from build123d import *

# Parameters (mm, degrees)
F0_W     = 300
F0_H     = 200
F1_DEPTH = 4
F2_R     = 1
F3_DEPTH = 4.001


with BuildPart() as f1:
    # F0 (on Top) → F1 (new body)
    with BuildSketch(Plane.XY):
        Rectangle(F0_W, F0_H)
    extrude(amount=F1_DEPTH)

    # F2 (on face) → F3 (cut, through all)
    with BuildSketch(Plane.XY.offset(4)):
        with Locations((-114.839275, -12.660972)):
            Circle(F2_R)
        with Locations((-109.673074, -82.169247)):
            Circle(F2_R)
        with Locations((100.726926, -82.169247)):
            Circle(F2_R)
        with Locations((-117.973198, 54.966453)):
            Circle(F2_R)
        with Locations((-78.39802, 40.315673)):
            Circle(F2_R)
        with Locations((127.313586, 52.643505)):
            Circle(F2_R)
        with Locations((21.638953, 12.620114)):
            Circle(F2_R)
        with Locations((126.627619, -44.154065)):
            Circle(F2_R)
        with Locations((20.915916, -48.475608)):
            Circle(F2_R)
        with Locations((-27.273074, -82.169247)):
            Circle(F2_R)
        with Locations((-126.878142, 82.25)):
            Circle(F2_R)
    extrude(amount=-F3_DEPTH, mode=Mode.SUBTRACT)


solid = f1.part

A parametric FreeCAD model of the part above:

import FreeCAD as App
import Part
import Sketcher
from FreeCAD import Vector

doc = App.newDocument("Part")
params = doc.addObject("Spreadsheet::Sheet", "Params")
for row, (alias, value) in enumerate([
    ("sketch1_width", "300 mm"),
    ("sketch1_height", "200 mm"),
    ("pad1_length", "4 mm"),
    ("sketch2_diameter", "2 mm"),
], start=1):
    params.set(f"A{row}", alias)
    params.set(f"B{row}", "=" + value)
    params.setAlias(f"B{row}", alias)

body = doc.addObject("PartDesign::Body", "Body")

sketch1 = body.newObject("Sketcher::SketchObject", "Sketch")
sketch1.AttachmentSupport = (doc.getObject("XY_Plane"), [""])
sketch1.MapMode = "FlatFace"
sketch1.addGeometry([
    Part.LineSegment(Vector(-150, 100, 0), Vector(-150, -100, 0)),
    Part.LineSegment(Vector(-150, -100, 0), Vector(150, -100, 0)),
    Part.LineSegment(Vector(150, -100, 0), Vector(150, 100, 0)),
    Part.LineSegment(Vector(150, 100, 0), Vector(-150, 100, 0)),
], False)
sketch1.addConstraint([
    Sketcher.Constraint("Coincident", 0, 2, 1, 1),
    Sketcher.Constraint("Coincident", 1, 2, 2, 1),
    Sketcher.Constraint("Coincident", 2, 2, 3, 1),
    Sketcher.Constraint("Coincident", 3, 2, 0, 1),
    Sketcher.Constraint("Vertical", 0),
    Sketcher.Constraint("Horizontal", 1),
    Sketcher.Constraint("Vertical", 2),
    Sketcher.Constraint("Horizontal", 3),
    Sketcher.Constraint("Symmetric", 0, 2, 2, 2, -1, 1),
    Sketcher.Constraint("DistanceX", 1, 1, 1, 2, 300.0),
    Sketcher.Constraint("DistanceY", 0, 2, 0, 1, 200.0),
])
sketch1.setExpression("Constraints[9]", "Params.sketch1_width")
sketch1.setExpression("Constraints[10]", "Params.sketch1_height")
pad1 = body.newObject("PartDesign::Pad", "Pad")
pad1.Profile = sketch1
pad1.setExpression("Length", "Params.pad1_length")

sketch2 = body.newObject("Sketcher::SketchObject", "Sketch001")
sketch2.AttachmentSupport = (doc.getObject("XY_Plane"), [""])
sketch2.MapMode = "FlatFace"
sketch2.AttachmentOffset = App.Placement(Vector(0, 0, 4), App.Rotation())
sketch2.addGeometry([
    Part.Circle(Vector(-114.839275, -12.660972, 0), Vector(0, 0, 1), 1),
    Part.Circle(Vector(-109.673074, -82.169247, 0), Vector(0, 0, 1), 1),
    Part.Circle(Vector(100.726926, -82.169247, 0), Vector(0, 0, 1), 1),
    Part.Circle(Vector(-117.973198, 54.966453, 0), Vector(0, 0, 1), 1),
    Part.Circle(Vector(-78.39802, 40.315673, 0), Vector(0, 0, 1), 1),
    Part.Circle(Vector(127.313586, 52.643505, 0), Vector(0, 0, 1), 1),
    Part.Circle(Vector(21.638953, 12.620114, 0), Vector(0, 0, 1), 1),
    Part.Circle(Vector(126.627619, -44.154065, 0), Vector(0, 0, 1), 1),
    Part.Circle(Vector(20.915916, -48.475608, 0), Vector(0, 0, 1), 1),
    Part.Circle(Vector(-27.273074, -82.169247, 0), Vector(0, 0, 1), 1),
    Part.Circle(Vector(-126.878142, 82.25, 0), Vector(0, 0, 1), 1),
], False)
sketch2.addConstraint([
    Sketcher.Constraint("Equal", 0, 1),
    Sketcher.Constraint("Equal", 1, 2),
    Sketcher.Constraint("Equal", 2, 3),
    Sketcher.Constraint("Equal", 3, 4),
    Sketcher.Constraint("Equal", 4, 5),
    Sketcher.Constraint("Equal", 5, 6),
    Sketcher.Constraint("Equal", 6, 7),
    Sketcher.Constraint("Equal", 7, 8),
    Sketcher.Constraint("Equal", 8, 9),
    Sketcher.Constraint("Equal", 9, 10),
    Sketcher.Constraint("Horizontal", 1, 3, 2, 3),
    Sketcher.Constraint("Horizontal", 2, 3, 9, 3),
    Sketcher.Constraint("Diameter", 0, 2.0),
    Sketcher.Constraint("DistanceX", 9, 3, 2, 3, 128.0),
    Sketcher.Constraint("DistanceX", 1, 3, 2, 3, 210.4),
    Sketcher.Constraint("DistanceY", -1, 1, 10, 3, 82.25),
    Sketcher.Constraint("DistanceX", 0, 3, 1, 3, 5.166201),
    Sketcher.Constraint("DistanceY", 1, 3, 3, 3, 137.1357),
    Sketcher.Constraint("DistanceY", 0, 3, -1, 1, 12.660972),
    Sketcher.Constraint("DistanceX", 4, 3, -1, 1, 78.39802),
    Sketcher.Constraint("DistanceX", -1, 1, 7, 3, 126.627619),
    Sketcher.Constraint("DistanceX", 10, 3, -1, 1, 126.878142),
    Sketcher.Constraint("DistanceY", 4, 3, 3, 3, 14.65078),
    Sketcher.Constraint("DistanceX", 2, 3, 5, 3, 26.58666),
    Sketcher.Constraint("DistanceY", 2, 3, 5, 3, 134.812752),
    Sketcher.Constraint("DistanceY", 6, 3, 4, 3, 27.695559),
    Sketcher.Constraint("DistanceX", 0, 3, 6, 3, 136.478228),
    Sketcher.Constraint("DistanceX", 3, 3, 6, 3, 139.612151),
    Sketcher.Constraint("DistanceY", 2, 3, 7, 3, 38.015182),
    Sketcher.Constraint("DistanceX", 8, 3, 2, 3, 79.81101),
    Sketcher.Constraint("DistanceY", 2, 3, 8, 3, 33.693639),
    Sketcher.Constraint("DistanceX", 0, 3, -1, 1, 114.839275),
    Sketcher.Constraint("DistanceY", 1, 3, -1, 1, 82.169247),
])
sketch2.setExpression("Constraints[12]", "Params.sketch2_diameter")
pocket1 = body.newObject("PartDesign::Pocket", "Pocket")
pocket1.Profile = sketch2
pocket1.Type = "ThroughAll"

doc.recompute()
